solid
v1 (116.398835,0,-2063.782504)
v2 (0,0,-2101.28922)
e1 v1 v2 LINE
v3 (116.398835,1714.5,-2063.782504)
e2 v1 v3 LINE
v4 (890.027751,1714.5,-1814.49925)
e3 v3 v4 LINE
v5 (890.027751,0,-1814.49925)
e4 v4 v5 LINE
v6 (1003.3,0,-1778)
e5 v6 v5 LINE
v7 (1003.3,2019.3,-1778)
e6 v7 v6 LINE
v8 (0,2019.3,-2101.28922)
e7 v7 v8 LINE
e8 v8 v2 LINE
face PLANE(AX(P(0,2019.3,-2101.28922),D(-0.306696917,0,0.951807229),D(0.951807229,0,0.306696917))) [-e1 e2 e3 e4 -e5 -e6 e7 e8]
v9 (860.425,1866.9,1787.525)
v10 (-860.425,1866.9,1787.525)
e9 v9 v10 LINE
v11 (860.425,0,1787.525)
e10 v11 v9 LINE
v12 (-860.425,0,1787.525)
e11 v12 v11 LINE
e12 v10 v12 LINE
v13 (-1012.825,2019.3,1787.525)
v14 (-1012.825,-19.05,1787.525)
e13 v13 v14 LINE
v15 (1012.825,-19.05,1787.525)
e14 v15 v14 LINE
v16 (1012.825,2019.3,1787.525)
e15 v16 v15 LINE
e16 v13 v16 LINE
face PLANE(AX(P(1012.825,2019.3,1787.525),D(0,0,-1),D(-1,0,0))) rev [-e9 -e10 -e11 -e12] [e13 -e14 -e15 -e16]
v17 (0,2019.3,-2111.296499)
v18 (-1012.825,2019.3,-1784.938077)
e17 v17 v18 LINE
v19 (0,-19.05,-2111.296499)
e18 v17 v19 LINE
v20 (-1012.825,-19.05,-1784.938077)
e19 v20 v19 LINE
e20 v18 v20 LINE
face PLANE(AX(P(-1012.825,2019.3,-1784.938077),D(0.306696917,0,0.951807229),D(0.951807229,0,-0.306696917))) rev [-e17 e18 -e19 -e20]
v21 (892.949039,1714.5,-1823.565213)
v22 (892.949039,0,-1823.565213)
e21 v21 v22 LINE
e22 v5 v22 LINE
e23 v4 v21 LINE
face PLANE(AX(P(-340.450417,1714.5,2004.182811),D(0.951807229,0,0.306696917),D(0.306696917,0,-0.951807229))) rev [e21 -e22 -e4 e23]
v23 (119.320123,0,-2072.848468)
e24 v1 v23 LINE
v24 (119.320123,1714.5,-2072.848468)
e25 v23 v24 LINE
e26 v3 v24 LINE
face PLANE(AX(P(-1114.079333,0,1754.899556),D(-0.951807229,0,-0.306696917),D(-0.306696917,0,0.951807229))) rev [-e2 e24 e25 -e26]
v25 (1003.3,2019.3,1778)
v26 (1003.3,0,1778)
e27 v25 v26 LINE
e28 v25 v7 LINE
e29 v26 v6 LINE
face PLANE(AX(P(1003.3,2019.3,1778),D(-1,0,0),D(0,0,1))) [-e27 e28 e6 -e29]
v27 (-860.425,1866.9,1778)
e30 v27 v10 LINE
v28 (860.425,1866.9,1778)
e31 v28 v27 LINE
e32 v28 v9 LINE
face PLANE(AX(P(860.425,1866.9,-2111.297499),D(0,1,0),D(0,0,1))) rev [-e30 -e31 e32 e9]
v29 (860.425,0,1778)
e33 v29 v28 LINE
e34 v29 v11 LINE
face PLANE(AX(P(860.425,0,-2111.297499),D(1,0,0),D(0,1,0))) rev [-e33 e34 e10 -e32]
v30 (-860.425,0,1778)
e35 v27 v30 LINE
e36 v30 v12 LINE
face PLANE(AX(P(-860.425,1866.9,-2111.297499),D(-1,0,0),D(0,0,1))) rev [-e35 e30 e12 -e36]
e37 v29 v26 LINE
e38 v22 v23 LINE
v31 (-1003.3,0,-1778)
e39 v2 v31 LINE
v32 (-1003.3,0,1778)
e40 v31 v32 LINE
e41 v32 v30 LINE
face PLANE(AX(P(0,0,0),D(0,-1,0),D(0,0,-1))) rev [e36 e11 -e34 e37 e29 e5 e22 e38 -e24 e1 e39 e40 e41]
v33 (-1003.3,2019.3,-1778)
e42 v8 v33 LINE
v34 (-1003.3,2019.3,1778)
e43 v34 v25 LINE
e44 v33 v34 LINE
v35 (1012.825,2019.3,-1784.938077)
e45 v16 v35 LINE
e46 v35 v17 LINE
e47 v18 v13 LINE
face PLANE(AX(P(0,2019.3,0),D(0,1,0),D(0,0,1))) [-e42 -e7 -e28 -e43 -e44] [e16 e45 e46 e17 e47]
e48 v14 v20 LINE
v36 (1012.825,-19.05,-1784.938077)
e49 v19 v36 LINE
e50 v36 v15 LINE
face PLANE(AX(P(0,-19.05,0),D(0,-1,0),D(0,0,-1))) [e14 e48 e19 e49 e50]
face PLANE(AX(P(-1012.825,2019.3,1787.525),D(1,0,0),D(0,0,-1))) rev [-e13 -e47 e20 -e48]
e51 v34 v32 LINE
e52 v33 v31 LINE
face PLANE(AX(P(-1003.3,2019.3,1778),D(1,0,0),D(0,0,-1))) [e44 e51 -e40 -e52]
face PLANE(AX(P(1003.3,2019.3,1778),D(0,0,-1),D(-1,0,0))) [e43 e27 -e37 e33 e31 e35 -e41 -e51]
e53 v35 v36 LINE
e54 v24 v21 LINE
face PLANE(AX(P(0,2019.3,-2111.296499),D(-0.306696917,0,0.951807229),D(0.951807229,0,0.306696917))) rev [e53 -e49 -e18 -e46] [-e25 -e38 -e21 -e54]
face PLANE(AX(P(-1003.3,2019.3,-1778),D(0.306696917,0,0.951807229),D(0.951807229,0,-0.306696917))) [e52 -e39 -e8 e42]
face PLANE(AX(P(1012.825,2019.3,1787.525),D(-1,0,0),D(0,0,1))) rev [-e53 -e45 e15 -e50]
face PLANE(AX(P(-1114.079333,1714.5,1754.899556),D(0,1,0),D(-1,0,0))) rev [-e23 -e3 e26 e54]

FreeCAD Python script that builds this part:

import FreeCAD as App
import Part
import Sketcher

V = App.Vector
Q = App.Units.Quantity

doc = App.newDocument("Part")
body = doc.addObject("PartDesign::Body", "Body")

sketch1 = body.newObject("Sketcher::SketchObject", "Sketch")
sketch1.AttachmentSupport = (doc.getObject("XZ_Plane"), [""])
sketch1.MapMode = "FlatFace"
sketch1.addGeometry(Part.LineSegment(V(0, -2111, 0), V(-1013, -1785, 0)), False)
sketch1.addGeometry(Part.LineSegment(V(-1013, -1785, 0), V(-1013, 1788, 0)), False)
sketch1.addGeometry(Part.LineSegment(V(-1013, 1788, 0), V(1013, 1788, 0)), False)
sketch1.addGeometry(Part.LineSegment(V(1013, 1788, 0), V(1013, -1785, 0)), False)
sketch1.addGeometry(Part.LineSegment(V(1013, -1785, 0), V(0, -2111, 0)), False)
sketch1.addGeometry(Part.LineSegment(V(-1003, -1778, 0), V(0, -2101, 0)), False)
sketch1.addGeometry(Part.LineSegment(V(0, -2101, 0), V(1003, -1778, 0)), False)
sketch1.addGeometry(Part.LineSegment(V(1003, -1778, 0), V(1003, 1778, 0)), False)
sketch1.addGeometry(Part.LineSegment(V(1003, 1778, 0), V(-1003, 1778, 0)), False)
sketch1.addGeometry(Part.LineSegment(V(-1003, 1778, 0), V(-1003, -1778, 0)), False)
sketch1.addConstraint(Sketcher.Constraint("Coincident", 0, 2, 1, 1))
sketch1.addConstraint(Sketcher.Constraint("Coincident", 1, 2, 2, 1))
sketch1.addConstraint(Sketcher.Constraint("Coincident", 2, 2, 3, 1))
sketch1.addConstraint(Sketcher.Constraint("Coincident", 3, 2, 4, 1))
sketch1.addConstraint(Sketcher.Constraint("Coincident", 4, 2, 0, 1))
sketch1.addConstraint(Sketcher.Constraint("Coincident", 5, 2, 6, 1))
sketch1.addConstraint(Sketcher.Constraint("Coincident", 6, 2, 7, 1))
sketch1.addConstraint(Sketcher.Constraint("Coincident", 7, 2, 8, 1))
sketch1.addConstraint(Sketcher.Constraint("Coincident", 8, 2, 9, 1))
sketch1.addConstraint(Sketcher.Constraint("Coincident", 9, 2, 5, 1))
sketch1.addConstraint(Sketcher.Constraint("Vertical", 1))
sketch1.addConstraint(Sketcher.Constraint("Horizontal", 2))
sketch1.addConstraint(Sketcher.Constraint("Vertical", 3))
sketch1.addConstraint(Sketcher.Constraint("Vertical", 7))
sketch1.addConstraint(Sketcher.Constraint("Horizontal", 8))
sketch1.addConstraint(Sketcher.Constraint("Vertical", 9))
sketch1.addConstraint(Sketcher.Constraint("Symmetric", 6, 2, 8, 2, -1, 1))
sketch1.addConstraint(Sketcher.Constraint("Symmetric", 0, 2, 3, 2, -2))
sketch1.addConstraint(Sketcher.Constraint("PointOnObject", 4, 2, -2))
sketch1.addConstraint(Sketcher.Constraint("PointOnObject", 5, 2, -2))
sketch1.addConstraint(Sketcher.Constraint("Parallel", 0, 5))
sketch1.addConstraint(Sketcher.Constraint("Parallel", 4, 6))
sketch1.addConstraint(Sketcher.Constraint("DistanceX", 8, 2, 8, 1, Q("79 in")))
sketch1.addConstraint(Sketcher.Constraint("DistanceY", 7, 1, 7, 2, Q("140 in")))
sketch1.addConstraint(Sketcher.Constraint("Distance", 5, Q("41.5 in")))
sketch1.addConstraint(Sketcher.Constraint("DistanceX", 2, 1, 2, 2, Q("79.75 in")))
sketch1.addConstraint(Sketcher.Constraint("DistanceY", -1, 1, 1, 2, Q("70.375 in")))
sketch1.addConstraint(Sketcher.Constraint("DistanceY", 4, 2, -1, 1, Q("2111.296499 mm")))
pad1 = body.newObject("PartDesign::Pad", "Pad")
pad1.Profile = sketch1
pad1.Length = Q("79.5 in")
pad1.Reversed = True

sketch2 = body.newObject("Sketcher::SketchObject", "Sketch001")
sketch2.AttachmentSupport = (doc.getObject("XZ_Plane"), [""])
sketch2.MapMode = "FlatFace"
sketch2.addGeometry(Part.LineSegment(V(-1013, 1788, 0), V(-1013, -1785, 0)), False)
sketch2.addGeometry(Part.LineSegment(V(-1013, -1785, 0), V(0, -2111, 0)), False)
sketch2.addGeometry(Part.LineSegment(V(0, -2111, 0), V(1013, -1785, 0)), False)
sketch2.addGeometry(Part.LineSegment(V(1013, -1785, 0), V(1013, 1788, 0)), False)
sketch2.addGeometry(Part.LineSegment(V(1013, 1788, 0), V(-1013, 1788, 0)), False)
sketch2.addConstraint(Sketcher.Constraint("Coincident", 0, 2, 1, 1))
sketch2.addConstraint(Sketcher.Constraint("Coincident", 1, 2, 2, 1))
sketch2.addConstraint(Sketcher.Constraint("Coincident", 2, 2, 3, 1))
sketch2.addConstraint(Sketcher.Constraint("Coincident", 3, 2, 4, 1))
sketch2.addConstraint(Sketcher.Constraint("Coincident", 4, 2, 0, 1))
sketch2.addConstraint(Sketcher.Constraint("Vertical", 0))
sketch2.addConstraint(Sketcher.Constraint("Vertical", 3))
sketch2.addConstraint(Sketcher.Constraint("Horizontal", 4))
sketch2.addConstraint(Sketcher.Constraint("Symmetric", 0, 2, 2, 2, -2))
sketch2.addConstraint(Sketcher.Constraint("PointOnObject", 1, 2, -2))
sketch2.addConstraint(Sketcher.Constraint("DistanceX", 4, 2, 4, 1, Q("79.75 in")))
sketch2.addConstraint(Sketcher.Constraint("DistanceY", -1, 1, 3, 2, Q("70.375 in")))
sketch2.addConstraint(Sketcher.Constraint("DistanceY", 1, 2, -1, 1, Q("2111.296499 mm")))
sketch2.addConstraint(Sketcher.Constraint("Distance", 1, Q("1064.107278 mm")))
pad2 = body.newObject("PartDesign::Pad", "Pad001")
pad2.Profile = sketch2
pad2.Length = Q("0.75 in")

sketch3 = body.newObject("Sketcher::SketchObject", "Sketch002")
sketch3.Placement = App.Placement(V(616.321953, 0, -1912.701618), App.Rotation(V(-0.951807229, 0, -0.306696917), V(0, 1, 0), V(0.306696917, 0, -0.951807229), "ZXY"))
sketch3.addGeometry(Part.LineSegment(V(-291, 1715, 0), V(-291, 0, 0)), False)
sketch3.addGeometry(Part.LineSegment(V(-291, 0, 0), V(522, 0, 0)), False)
sketch3.addGeometry(Part.LineSegment(V(522, 0, 0), V(522, 1715, 0)), False)
sketch3.addGeometry(Part.LineSegment(V(522, 1715, 0), V(-291, 1715, 0)), False)
sketch3.addConstraint(Sketcher.Constraint("Coincident", 0, 2, 1, 1))
sketch3.addConstraint(Sketcher.Constraint("Coincident", 1, 2, 2, 1))
sketch3.addConstraint(Sketcher.Constraint("Coincident", 2, 2, 3, 1))
sketch3.addConstraint(Sketcher.Constraint("Coincident", 3, 2, 0, 1))
sketch3.addConstraint(Sketcher.Constraint("Vertical", 0))
sketch3.addConstraint(Sketcher.Constraint("Horizontal", 1))
sketch3.addConstraint(Sketcher.Constraint("Vertical", 2))
sketch3.addConstraint(Sketcher.Constraint("Horizontal", 3))
sketch3.addConstraint(Sketcher.Constraint("PointOnObject", 0, 2, -1))
sketch3.addConstraint(Sketcher.Constraint("DistanceX", 1, 1, 1, 2, Q("32 in")))
sketch3.addConstraint(Sketcher.Constraint("DistanceY", 0, 2, 0, 1, Q("67.5 in")))
sketch3.addConstraint(Sketcher.Constraint("DistanceX", 0, 2, -1, 1, Q("290.633521 mm")))
pocket1 = body.newObject("PartDesign::Pocket", "Pocket")
pocket1.Profile = sketch3
pocket1.Type = "UpToFirst"

sketch4 = body.newObject("Sketcher::SketchObject", "Sketch003")
sketch4.AttachmentSupport = (doc.getObject("XY_Plane"), [""])
sketch4.MapMode = "FlatFace"
sketch4.AttachmentOffset = App.Placement(V(0, 0, 70.375 * 25.4), App.Rotation())
sketch4.addGeometry(Part.LineSegment(V(-860, 1867, 0), V(-860, 0, 0)), False)
sketch4.addGeometry(Part.LineSegment(V(-860, 0, 0), V(860, 0, 0)), False)
sketch4.addGeometry(Part.LineSegment(V(860, 0, 0), V(860, 1867, 0)), False)
sketch4.addGeometry(Part.LineSegment(V(860, 1867, 0), V(-860, 1867, 0)), False)
sketch4.addConstraint(Sketcher.Constraint("Coincident", 0, 2, 1, 1))
sketch4.addConstraint(Sketcher.Constraint("Coincident", 1, 2, 2, 1))
sketch4.addConstraint(Sketcher.Constraint("Coincident", 2, 2, 3, 1))
sketch4.addConstraint(Sketcher.Constraint("Coincident", 3, 2, 0, 1))
sketch4.addConstraint(Sketcher.Constraint("Vertical", 0))
sketch4.addConstraint(Sketcher.Constraint("Horizontal", 1))
sketch4.addConstraint(Sketcher.Constraint("Vertical", 2))
sketch4.addConstraint(Sketcher.Constraint("Horizontal", 3))
sketch4.addConstraint(Sketcher.Constraint("Symmetric", 0, 2, 1, 2, -1, 1))
sketch4.addConstraint(Sketcher.Constraint("DistanceY", 0, 2, 0, 1, Q("73.5 in")))
sketch4.addConstraint(Sketcher.Constraint("DistanceX", 1, 1, 1, 2, Q("67.75 in")))
pocket2 = body.newObject("PartDesign::Pocket", "Pocket001")
pocket2.Profile = sketch4
pocket2.Type = "UpToFirst"

doc.recompute()
